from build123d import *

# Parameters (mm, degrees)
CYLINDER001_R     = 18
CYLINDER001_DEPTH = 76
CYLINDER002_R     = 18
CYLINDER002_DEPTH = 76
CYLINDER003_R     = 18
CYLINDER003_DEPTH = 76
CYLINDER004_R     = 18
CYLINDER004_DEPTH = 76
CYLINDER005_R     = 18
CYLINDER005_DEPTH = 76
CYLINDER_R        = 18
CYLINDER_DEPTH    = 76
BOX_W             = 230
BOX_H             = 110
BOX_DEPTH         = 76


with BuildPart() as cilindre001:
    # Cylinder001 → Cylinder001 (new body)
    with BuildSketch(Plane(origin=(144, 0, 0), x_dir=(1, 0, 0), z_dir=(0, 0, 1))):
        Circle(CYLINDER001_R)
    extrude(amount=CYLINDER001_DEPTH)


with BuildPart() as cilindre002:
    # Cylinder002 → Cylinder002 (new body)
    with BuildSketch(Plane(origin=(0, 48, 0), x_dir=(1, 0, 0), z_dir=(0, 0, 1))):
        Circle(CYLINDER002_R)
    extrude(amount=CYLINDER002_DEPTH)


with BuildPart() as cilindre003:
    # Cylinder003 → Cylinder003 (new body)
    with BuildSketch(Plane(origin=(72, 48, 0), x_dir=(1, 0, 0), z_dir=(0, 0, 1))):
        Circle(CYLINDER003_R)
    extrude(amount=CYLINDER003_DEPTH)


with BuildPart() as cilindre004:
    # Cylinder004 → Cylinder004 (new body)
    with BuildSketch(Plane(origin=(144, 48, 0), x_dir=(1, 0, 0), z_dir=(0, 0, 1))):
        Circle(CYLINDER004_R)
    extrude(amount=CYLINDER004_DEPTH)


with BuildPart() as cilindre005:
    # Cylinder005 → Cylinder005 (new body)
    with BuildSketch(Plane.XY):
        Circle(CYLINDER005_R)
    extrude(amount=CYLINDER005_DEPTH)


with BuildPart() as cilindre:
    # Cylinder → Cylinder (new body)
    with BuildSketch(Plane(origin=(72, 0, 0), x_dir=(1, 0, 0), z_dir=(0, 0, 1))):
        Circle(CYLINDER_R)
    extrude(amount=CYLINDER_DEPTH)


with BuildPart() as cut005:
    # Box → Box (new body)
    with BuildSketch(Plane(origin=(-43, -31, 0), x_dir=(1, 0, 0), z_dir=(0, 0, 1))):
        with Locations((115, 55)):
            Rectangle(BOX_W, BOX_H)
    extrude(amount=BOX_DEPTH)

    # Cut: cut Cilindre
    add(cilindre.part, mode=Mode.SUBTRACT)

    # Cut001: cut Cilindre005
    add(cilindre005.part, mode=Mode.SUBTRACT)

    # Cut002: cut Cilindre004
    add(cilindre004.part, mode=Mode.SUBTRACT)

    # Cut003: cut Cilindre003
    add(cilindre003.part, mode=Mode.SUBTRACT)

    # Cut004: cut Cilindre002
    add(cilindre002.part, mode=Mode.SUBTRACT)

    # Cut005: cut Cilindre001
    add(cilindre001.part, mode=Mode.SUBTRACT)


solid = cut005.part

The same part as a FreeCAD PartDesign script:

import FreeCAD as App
import Part
import Sketcher
from FreeCAD import Vector
Q = App.Units.Quantity

doc = App.newDocument("Part")
body = doc.addObject("PartDesign::Body", "Body")

# Sketch on XY plane
sketch1 = body.newObject("Sketcher::SketchObject", "Sketch")
sketch1.AttachmentSupport = (doc.getObject("XY_Plane"), [""])
sketch1.MapMode = "FlatFace"
sketch1.addGeometry(Part.Circle(Vector(144, 0, 0), Vector(0, 0, 1), 18), False)
sketch1.addConstraint([
    Sketcher.Constraint("PointOnObject", 0, 3, -1),
    Sketcher.Constraint("Diameter", 0, Q("36 mm")),
    Sketcher.Constraint("DistanceX", -1, 1, 0, 3, Q("144 mm")),
])
pad1 = body.newObject("PartDesign::Pad", "Pad")
pad1.Profile = sketch1
pad1.Length = 76
body2 = doc.addObject("PartDesign::Body", "Body001")

# Sketch on XY plane
sketch2 = body2.newObject("Sketcher::SketchObject", "Sketch001")
sketch2.AttachmentSupport = (doc.getObject("XY_Plane001"), [""])
sketch2.MapMode = "FlatFace"
sketch2.addGeometry(Part.Circle(Vector(0, 48, 0), Vector(0, 0, 1), 18), False)
sketch2.addConstraint([
    Sketcher.Constraint("PointOnObject", 0, 3, -2),
    Sketcher.Constraint("Diameter", 0, Q("36 mm")),
    Sketcher.Constraint("DistanceY", -1, 1, 0, 3, Q("48 mm")),
])
pad2 = body2.newObject("PartDesign::Pad", "Pad001")
pad2.Profile = sketch2
pad2.Length = 76
body3 = doc.addObject("PartDesign::Body", "Body002")

# Sketch on XY plane
sketch3 = body3.newObject("Sketcher::SketchObject", "Sketch002")
sketch3.AttachmentSupport = (doc.getObject("XY_Plane002"), [""])
sketch3.MapMode = "FlatFace"
sketch3.addGeometry(Part.Circle(Vector(72, 48, 0), Vector(0, 0, 1), 18), False)
sketch3.addConstraint([
    Sketcher.Constraint("Diameter", 0, Q("36 mm")),
    Sketcher.Constraint("DistanceX", -1, 1, 0, 3, Q("72 mm")),
    Sketcher.Constraint("DistanceY", -1, 1, 0, 3, Q("48 mm")),
])
pad3 = body3.newObject("PartDesign::Pad", "Pad002")
pad3.Profile = sketch3
pad3.Length = 76
body4 = doc.addObject("PartDesign::Body", "Body003")

# Sketch on XY plane
sketch4 = body4.newObject("Sketcher::SketchObject", "Sketch003")
sketch4.AttachmentSupport = (doc.getObject("XY_Plane003"), [""])
sketch4.MapMode = "FlatFace"
sketch4.addGeometry(Part.Circle(Vector(144, 48, 0), Vector(0, 0, 1), 18), False)
sketch4.addConstraint([
    Sketcher.Constraint("Diameter", 0, Q("36 mm")),
    Sketcher.Constraint("DistanceX", -1, 1, 0, 3, Q("144 mm")),
    Sketcher.Constraint("DistanceY", -1, 1, 0, 3, Q("48 mm")),
])
pad4 = body4.newObject("PartDesign::Pad", "Pad003")
pad4.Profile = sketch4
pad4.Length = 76
body5 = doc.addObject("PartDesign::Body", "Body004")

# Sketch on XY plane
sketch5 = body5.newObject("Sketcher::SketchObject", "Sketch004")
sketch5.AttachmentSupport = (doc.getObject("XY_Plane004"), [""])
sketch5.MapMode = "FlatFace"
sketch5.addGeometry(Part.Circle(Vector(0, 0, 0), Vector(0, 0, 1), 18), False)
sketch5.addConstraint([
    Sketcher.Constraint("Coincident", 0, 3, -1, 1),
    Sketcher.Constraint("Diameter", 0, Q("36 mm")),
])
pad5 = body5.newObject("PartDesign::Pad", "Pad004")
pad5.Profile = sketch5
pad5.Length = 76
body6 = doc.addObject("PartDesign::Body", "Body005")

# Sketch on XY plane
sketch6 = body6.newObject("Sketcher::SketchObject", "Sketch005")
sketch6.AttachmentSupport = (doc.getObject("XY_Plane005"), [""])
sketch6.MapMode = "FlatFace"
sketch6.addGeometry(Part.Circle(Vector(72, 0, 0), Vector(0, 0, 1), 18), False)
sketch6.addConstraint([
    Sketcher.Constraint("PointOnObject", 0, 3, -1),
    Sketcher.Constraint("Diameter", 0, Q("36 mm")),
    Sketcher.Constraint("DistanceX", -1, 1, 0, 3, Q("72 mm")),
])
pad6 = body6.newObject("PartDesign::Pad", "Pad005")
pad6.Profile = sketch6
pad6.Length = 76
body7 = doc.addObject("PartDesign::Body", "Body006")

# Sketch on XY plane
sketch7 = body7.newObject("Sketcher::SketchObject", "Sketch006")
sketch7.AttachmentSupport = (doc.getObject("XY_Plane006"), [""])
sketch7.MapMode = "FlatFace"
sketch7.addGeometry([
    Part.LineSegment(Vector(-43, 79, 0), Vector(-43, -31, 0)),
    Part.LineSegment(Vector(-43, -31, 0), Vector(187, -31, 0)),
    Part.LineSegment(Vector(187, -31, 0), Vector(187, 79, 0)),
    Part.LineSegment(Vector(187, 79, 0), Vector(-43, 79, 0)),
], False)
sketch7.addConstraint([
    Sketcher.Constraint("Coincident", 0, 2, 1, 1),
    Sketcher.Constraint("Coincident", 1, 2, 2, 1),
    Sketcher.Constraint("Coincident", 2, 2, 3, 1),
    Sketcher.Constraint("Coincident", 3, 2, 0, 1),
    Sketcher.Constraint("Vertical", 0),
    Sketcher.Constraint("Horizontal", 1),
    Sketcher.Constraint("Vertical", 2),
    Sketcher.Constraint("Horizontal", 3),
    Sketcher.Constraint("DistanceX", 1, 1, 1, 2, Q("230 mm")),
    Sketcher.Constraint("DistanceY", 0, 2, 0, 1, Q("110 mm")),
    Sketcher.Constraint("DistanceX", 0, 2, -1, 1, Q("43 mm")),
    Sketcher.Constraint("DistanceY", 0, 2, -1, 1, Q("31 mm")),
])
pad7 = body7.newObject("PartDesign::Pad", "Pad006")
pad7.Profile = sketch7
pad7.Length = 76
doc.recompute()

boolean = body7.newObject("PartDesign::Boolean", "Boolean")
boolean.Type = "Cut"
boolean.addObjects([body6])
doc.recompute()

boolean2 = body7.newObject("PartDesign::Boolean", "Boolean001")
boolean2.Type = "Cut"
boolean2.addObjects([body5])
doc.recompute()

boolean3 = body7.newObject("PartDesign::Boolean", "Boolean002")
boolean3.Type = "Cut"
boolean3.addObjects([body4])
doc.recompute()

boolean4 = body7.newObject("PartDesign::Boolean", "Boolean003")
boolean4.Type = "Cut"
boolean4.addObjects([body3])
doc.recompute()

boolean5 = body7.newObject("PartDesign::Boolean", "Boolean004")
boolean5.Type = "Cut"
boolean5.addObjects([body2])
doc.recompute()

boolean6 = body7.newObject("PartDesign::Boolean", "Boolean005")
boolean6.Type = "Cut"
boolean6.addObjects([body])

doc.recompute()
